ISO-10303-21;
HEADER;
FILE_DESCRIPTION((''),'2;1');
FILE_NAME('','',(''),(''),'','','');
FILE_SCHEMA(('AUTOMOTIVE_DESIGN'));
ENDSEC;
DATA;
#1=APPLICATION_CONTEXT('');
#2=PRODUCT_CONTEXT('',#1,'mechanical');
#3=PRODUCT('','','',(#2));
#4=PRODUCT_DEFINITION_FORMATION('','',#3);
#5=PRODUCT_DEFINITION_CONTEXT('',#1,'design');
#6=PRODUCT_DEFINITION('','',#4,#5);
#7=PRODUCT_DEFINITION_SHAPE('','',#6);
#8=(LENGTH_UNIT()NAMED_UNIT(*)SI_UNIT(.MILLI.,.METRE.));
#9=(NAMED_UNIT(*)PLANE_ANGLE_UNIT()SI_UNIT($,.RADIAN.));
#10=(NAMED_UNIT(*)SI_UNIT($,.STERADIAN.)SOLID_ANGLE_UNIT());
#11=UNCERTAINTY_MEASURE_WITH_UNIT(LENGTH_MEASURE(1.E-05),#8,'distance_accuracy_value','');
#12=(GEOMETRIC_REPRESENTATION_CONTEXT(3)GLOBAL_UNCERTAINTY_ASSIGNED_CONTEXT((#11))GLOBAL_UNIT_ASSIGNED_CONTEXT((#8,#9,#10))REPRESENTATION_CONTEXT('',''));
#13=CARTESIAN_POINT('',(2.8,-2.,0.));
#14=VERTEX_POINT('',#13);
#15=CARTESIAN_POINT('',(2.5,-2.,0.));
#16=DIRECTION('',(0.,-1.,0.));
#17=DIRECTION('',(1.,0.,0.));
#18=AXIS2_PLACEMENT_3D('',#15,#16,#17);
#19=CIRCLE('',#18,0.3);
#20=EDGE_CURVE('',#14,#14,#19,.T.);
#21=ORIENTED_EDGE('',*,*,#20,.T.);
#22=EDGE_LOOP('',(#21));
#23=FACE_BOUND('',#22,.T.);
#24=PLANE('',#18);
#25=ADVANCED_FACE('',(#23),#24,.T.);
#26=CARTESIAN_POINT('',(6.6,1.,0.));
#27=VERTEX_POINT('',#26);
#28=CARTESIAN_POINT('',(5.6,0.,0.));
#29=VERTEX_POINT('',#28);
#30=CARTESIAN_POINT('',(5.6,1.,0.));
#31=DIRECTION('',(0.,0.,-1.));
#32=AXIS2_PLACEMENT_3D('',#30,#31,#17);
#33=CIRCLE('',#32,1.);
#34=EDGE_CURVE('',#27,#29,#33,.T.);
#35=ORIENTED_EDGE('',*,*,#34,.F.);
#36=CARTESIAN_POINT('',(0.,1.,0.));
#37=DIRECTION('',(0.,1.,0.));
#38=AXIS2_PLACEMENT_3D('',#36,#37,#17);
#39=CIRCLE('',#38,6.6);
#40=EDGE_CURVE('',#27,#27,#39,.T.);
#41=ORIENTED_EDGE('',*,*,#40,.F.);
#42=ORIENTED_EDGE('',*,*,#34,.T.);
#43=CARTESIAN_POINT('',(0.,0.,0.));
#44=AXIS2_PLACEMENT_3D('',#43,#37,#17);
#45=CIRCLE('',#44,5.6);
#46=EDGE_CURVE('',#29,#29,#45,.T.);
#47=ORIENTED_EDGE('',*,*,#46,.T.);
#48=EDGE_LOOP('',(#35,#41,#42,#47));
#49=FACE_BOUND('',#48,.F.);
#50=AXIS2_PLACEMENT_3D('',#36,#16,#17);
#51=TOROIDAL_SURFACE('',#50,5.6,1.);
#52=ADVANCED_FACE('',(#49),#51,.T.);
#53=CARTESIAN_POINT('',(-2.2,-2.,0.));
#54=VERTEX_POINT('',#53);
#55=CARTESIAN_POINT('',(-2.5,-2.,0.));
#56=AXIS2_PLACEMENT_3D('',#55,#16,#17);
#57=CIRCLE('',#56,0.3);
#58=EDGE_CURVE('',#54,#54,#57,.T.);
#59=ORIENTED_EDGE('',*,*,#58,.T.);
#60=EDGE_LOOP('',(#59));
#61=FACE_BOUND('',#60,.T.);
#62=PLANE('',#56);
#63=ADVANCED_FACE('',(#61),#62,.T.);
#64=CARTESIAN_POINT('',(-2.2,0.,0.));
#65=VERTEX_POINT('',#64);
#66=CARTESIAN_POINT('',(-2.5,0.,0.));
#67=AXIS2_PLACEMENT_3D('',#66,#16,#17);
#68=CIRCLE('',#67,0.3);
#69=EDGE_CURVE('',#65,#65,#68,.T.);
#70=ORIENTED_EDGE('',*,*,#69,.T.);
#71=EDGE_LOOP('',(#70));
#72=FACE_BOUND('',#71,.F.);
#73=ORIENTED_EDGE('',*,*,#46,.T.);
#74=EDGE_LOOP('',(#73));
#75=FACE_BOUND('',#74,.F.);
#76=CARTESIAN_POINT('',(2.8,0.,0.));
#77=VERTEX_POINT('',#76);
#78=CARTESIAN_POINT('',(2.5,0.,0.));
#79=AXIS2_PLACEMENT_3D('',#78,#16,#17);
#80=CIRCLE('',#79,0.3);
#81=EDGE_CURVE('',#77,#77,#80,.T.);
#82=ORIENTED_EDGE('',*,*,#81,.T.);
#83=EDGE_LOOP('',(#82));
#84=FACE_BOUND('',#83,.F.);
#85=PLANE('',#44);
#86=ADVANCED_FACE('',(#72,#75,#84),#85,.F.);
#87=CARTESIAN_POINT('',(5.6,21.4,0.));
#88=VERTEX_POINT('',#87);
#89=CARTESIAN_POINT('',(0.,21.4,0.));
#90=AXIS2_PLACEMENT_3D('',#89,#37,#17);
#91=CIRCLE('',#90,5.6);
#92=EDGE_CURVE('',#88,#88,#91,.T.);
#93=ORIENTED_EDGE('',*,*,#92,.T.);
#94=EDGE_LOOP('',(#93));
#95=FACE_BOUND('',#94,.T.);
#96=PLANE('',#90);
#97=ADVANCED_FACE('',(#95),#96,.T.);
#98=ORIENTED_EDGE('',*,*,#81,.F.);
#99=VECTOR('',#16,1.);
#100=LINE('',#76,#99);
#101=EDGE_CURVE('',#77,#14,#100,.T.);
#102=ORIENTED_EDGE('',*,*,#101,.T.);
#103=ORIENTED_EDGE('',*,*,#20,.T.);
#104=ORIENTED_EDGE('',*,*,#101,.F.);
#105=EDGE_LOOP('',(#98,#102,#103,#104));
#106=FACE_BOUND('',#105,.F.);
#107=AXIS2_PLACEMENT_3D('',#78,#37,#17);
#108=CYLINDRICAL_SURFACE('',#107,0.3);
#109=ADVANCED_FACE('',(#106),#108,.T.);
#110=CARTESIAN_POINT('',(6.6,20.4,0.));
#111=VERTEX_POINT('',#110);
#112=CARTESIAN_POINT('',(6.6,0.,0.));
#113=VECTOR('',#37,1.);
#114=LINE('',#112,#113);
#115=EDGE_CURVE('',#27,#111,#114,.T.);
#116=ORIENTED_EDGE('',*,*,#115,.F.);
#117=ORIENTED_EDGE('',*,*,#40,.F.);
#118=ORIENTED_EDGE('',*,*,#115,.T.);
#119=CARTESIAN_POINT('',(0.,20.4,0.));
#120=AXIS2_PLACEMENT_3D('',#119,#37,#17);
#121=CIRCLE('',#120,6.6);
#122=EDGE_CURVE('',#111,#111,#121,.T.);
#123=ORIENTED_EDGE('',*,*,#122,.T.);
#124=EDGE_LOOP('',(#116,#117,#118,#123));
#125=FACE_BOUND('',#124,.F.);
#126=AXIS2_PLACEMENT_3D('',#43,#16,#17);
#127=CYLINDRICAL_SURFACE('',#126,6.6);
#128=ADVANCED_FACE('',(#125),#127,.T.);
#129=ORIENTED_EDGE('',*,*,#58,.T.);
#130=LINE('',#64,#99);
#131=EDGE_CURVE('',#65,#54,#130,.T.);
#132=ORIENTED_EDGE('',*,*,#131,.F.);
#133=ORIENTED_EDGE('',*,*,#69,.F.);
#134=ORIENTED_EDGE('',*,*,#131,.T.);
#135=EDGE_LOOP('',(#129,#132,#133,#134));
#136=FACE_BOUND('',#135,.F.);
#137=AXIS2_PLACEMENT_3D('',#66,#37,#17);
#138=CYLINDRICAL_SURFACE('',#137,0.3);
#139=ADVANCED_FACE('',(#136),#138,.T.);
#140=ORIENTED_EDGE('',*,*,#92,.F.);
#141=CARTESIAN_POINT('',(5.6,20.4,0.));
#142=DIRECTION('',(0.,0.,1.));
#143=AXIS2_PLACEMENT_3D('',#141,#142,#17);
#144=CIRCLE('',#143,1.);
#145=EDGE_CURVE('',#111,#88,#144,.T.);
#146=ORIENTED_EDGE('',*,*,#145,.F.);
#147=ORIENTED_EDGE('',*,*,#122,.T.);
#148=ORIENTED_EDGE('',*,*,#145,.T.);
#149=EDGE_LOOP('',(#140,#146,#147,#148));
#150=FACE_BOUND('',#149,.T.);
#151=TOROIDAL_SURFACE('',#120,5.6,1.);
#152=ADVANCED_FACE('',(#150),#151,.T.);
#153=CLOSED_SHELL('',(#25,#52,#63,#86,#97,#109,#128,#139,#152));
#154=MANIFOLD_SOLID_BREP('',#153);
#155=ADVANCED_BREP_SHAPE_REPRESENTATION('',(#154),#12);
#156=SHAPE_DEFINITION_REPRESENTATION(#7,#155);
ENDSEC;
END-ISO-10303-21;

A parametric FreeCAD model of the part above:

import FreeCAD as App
import Part
import Sketcher

V = App.Vector


def edges_at(feature, points):
    """Names of the edges that pass closest to the given points."""
    edges = feature.Shape.Edges
    near = lambda p: min(range(len(edges)), key=lambda i: edges[i].distToShape(Part.Vertex(*p))[0])
    return sorted({f"Edge{near(p) + 1}" for p in points})

doc = App.newDocument("Part")
body = doc.addObject("PartDesign::Body", "Body")

sketch1 = body.newObject("Sketcher::SketchObject", "Sketch")
sketch1.AttachmentSupport = (doc.getObject("XZ_Plane"), [""])
sketch1.MapMode = "FlatFace"
sketch1.addGeometry(Part.Circle(V(0, 0, 0), V(0, 0, 1), 6.6), False)
sketch1.addConstraint([
    Sketcher.Constraint("Coincident", 0, 3, -1, 1),
    Sketcher.Constraint("Diameter", 0, 13.2),
])
pad1 = body.newObject("PartDesign::Pad", "Pad")
pad1.Profile = sketch1
pad1.Length = 21.4
pad1.Reversed = True
doc.recompute()

fillet = body.newObject("PartDesign::Fillet", "Fillet")
fillet.Base = (pad1, edges_at(pad1, [(-6.6, 0, 0), (-6.6, 21.4, 0)]))
fillet.Radius = 1

sketch2 = body.newObject("Sketcher::SketchObject", "Sketch001")
sketch2.AttachmentSupport = (doc.getObject("XZ_Plane"), [""])
sketch2.MapMode = "FlatFace"
sketch2.addGeometry([
    Part.Circle(V(-2.5, 0, 0), V(0, 0, 1), 0.3),
    Part.Circle(V(2.5, 0, 0), V(0, 0, 1), 0.3),
], False)
sketch2.addConstraint([
    Sketcher.Constraint("Equal", 0, 1),
    Sketcher.Constraint("Symmetric", 0, 3, 1, 3, -1, 1),
    Sketcher.Constraint("PointOnObject", 0, 3, -1),
    Sketcher.Constraint("Diameter", 0, 0.6),
    Sketcher.Constraint("DistanceX", 0, 3, 1, 3, 5.0),
])
pad2 = body.newObject("PartDesign::Pad", "Pad001")
pad2.Profile = sketch2
pad2.Length = 2

doc.recompute()
